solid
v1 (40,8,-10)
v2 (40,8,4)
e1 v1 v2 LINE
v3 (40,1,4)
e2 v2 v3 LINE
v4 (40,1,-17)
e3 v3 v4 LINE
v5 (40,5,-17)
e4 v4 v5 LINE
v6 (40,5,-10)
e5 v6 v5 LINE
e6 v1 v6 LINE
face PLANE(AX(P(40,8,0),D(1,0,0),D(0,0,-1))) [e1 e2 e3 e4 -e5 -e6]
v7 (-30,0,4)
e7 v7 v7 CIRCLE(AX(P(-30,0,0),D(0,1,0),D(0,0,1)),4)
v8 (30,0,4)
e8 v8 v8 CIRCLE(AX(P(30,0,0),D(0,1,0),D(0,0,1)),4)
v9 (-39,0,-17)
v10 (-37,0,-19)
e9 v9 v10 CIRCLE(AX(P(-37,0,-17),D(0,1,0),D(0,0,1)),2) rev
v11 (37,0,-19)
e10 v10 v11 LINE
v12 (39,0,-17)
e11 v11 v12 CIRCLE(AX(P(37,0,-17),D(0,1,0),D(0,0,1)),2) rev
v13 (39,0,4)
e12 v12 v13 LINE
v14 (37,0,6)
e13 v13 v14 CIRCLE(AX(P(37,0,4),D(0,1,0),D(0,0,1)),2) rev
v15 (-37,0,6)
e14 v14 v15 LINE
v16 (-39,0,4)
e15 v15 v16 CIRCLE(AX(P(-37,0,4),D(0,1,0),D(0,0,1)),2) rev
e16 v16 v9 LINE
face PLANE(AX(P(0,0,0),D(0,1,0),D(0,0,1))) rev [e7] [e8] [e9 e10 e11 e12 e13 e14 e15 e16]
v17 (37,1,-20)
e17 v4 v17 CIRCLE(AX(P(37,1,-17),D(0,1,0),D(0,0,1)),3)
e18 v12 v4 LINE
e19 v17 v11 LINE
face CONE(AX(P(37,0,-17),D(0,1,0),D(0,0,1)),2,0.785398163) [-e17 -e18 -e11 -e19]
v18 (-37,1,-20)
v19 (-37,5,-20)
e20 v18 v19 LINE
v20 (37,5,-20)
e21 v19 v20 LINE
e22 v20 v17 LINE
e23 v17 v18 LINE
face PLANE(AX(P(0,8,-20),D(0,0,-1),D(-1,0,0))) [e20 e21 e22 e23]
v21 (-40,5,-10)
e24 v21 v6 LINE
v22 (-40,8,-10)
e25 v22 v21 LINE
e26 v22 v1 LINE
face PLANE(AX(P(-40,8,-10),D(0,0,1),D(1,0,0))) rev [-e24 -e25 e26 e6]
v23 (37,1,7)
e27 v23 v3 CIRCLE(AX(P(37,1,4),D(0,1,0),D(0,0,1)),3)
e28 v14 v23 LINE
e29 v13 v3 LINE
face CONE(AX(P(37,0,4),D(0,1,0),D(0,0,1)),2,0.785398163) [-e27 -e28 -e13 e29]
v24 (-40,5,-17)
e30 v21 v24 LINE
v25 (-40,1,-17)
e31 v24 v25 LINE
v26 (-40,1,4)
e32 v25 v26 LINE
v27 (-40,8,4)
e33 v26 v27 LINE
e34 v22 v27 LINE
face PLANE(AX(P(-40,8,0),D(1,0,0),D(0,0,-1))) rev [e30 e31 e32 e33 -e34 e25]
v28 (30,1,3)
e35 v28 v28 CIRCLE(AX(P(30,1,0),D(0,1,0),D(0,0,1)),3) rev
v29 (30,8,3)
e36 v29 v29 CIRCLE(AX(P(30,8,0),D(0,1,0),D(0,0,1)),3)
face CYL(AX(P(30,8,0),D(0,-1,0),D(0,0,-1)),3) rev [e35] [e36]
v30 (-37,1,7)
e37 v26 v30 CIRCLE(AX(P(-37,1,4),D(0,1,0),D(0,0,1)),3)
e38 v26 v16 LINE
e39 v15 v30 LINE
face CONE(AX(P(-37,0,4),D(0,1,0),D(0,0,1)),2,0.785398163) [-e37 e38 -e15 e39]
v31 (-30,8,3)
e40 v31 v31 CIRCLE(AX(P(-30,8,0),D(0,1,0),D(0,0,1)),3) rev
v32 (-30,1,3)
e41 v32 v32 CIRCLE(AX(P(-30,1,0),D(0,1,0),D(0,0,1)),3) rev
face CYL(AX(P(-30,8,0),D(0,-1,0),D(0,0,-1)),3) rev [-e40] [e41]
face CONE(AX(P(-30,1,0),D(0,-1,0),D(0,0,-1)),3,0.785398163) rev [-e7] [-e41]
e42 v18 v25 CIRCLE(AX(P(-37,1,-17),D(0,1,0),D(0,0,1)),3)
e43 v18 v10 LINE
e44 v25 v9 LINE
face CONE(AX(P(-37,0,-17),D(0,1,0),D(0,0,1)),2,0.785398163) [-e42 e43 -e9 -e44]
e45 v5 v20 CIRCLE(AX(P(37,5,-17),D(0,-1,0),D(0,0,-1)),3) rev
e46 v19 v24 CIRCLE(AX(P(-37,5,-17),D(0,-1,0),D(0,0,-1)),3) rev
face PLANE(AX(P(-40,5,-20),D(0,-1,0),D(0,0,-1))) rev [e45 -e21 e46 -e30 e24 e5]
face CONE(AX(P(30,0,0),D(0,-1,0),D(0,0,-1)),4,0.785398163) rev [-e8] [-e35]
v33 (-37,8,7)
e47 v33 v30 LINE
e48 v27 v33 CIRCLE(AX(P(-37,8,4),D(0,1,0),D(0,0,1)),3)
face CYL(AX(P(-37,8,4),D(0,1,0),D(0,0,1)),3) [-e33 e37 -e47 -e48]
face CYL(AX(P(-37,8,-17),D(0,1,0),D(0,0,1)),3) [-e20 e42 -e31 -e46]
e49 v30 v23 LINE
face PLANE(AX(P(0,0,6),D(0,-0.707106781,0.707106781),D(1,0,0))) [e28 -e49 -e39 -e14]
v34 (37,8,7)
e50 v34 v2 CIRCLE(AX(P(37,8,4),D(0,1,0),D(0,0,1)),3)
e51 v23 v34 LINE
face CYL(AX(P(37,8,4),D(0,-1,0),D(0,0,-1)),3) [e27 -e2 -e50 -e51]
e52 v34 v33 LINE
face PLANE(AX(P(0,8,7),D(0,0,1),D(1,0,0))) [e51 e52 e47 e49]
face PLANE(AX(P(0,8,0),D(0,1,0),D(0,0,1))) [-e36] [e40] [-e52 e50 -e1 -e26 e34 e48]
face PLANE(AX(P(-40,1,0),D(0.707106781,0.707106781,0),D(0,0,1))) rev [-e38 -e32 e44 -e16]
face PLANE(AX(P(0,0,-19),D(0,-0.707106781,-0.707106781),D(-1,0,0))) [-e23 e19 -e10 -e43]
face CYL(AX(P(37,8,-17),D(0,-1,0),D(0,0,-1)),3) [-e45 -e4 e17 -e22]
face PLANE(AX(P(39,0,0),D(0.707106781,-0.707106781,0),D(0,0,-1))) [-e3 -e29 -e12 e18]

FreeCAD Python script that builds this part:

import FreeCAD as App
import Part
import Sketcher
from FreeCAD import Vector
Q = App.Units.Quantity


def edges_at(feature, points):
    """Names of the edges that pass closest to the given points."""
    edges = feature.Shape.Edges
    near = lambda p: min(range(len(edges)), key=lambda i: edges[i].distToShape(Part.Vertex(*p))[0])
    return sorted({f"Edge{near(p) + 1}" for p in points})

doc = App.newDocument("Part")
body = doc.addObject("PartDesign::Body", "Body")

# Sketch on XZ plane
sketch1 = body.newObject("Sketcher::SketchObject", "Sketch")
sketch1.AttachmentSupport = (doc.getObject("XZ_Plane"), [""])
sketch1.MapMode = "FlatFace"
sketch1.addGeometry(Part.LineSegment(Vector(40, -20, 0), Vector(-40, -20, 0)), False)
sketch1.addGeometry(Part.LineSegment(Vector(-40, -20, 0), Vector(-40, 7, 0)), False)
sketch1.addGeometry(Part.LineSegment(Vector(-40, 7, 0), Vector(40, 7, 0)), False)
sketch1.addGeometry(Part.LineSegment(Vector(40, 7, 0), Vector(40, -20, 0)), False)
sketch1.addGeometry(Part.Circle(Vector(30, 0, 0), Vector(0, 0, 1), 3), False)
sketch1.addGeometry(Part.Circle(Vector(-30, 0, 0), Vector(0, 0, 1), 3), False)
sketch1.addConstraint(Sketcher.Constraint("Coincident", 0, 2, 1, 1))
sketch1.addConstraint(Sketcher.Constraint("Coincident", 1, 2, 2, 1))
sketch1.addConstraint(Sketcher.Constraint("Coincident", 2, 2, 3, 1))
sketch1.addConstraint(Sketcher.Constraint("Coincident", 3, 2, 0, 1))
sketch1.addConstraint(Sketcher.Constraint("Horizontal", 0))
sketch1.addConstraint(Sketcher.Constraint("Vertical", 1))
sketch1.addConstraint(Sketcher.Constraint("Horizontal", 2))
sketch1.addConstraint(Sketcher.Constraint("Vertical", 3))
sketch1.addConstraint(Sketcher.Constraint("Equal", 4, 5))
sketch1.addConstraint(Sketcher.Constraint("Symmetric", 4, 3, 5, 3, -1, 1))
sketch1.addConstraint(Sketcher.Constraint("PointOnObject", 4, 3, -1))
sketch1.addConstraint(Sketcher.Constraint("Diameter", 4, Q("6 mm")))
sketch1.addConstraint(Sketcher.Constraint("DistanceX", 0, 2, 0, 1, Q("80 mm")))
sketch1.addConstraint(Sketcher.Constraint("DistanceY", 1, 1, 1, 2, Q("27 mm")))
sketch1.addConstraint(Sketcher.Constraint("DistanceX", -1, 1, 4, 3, Q("30 mm")))
sketch1.addConstraint(Sketcher.Constraint("DistanceX", 0, 2, -1, 1, Q("40 mm")))
sketch1.addConstraint(Sketcher.Constraint("DistanceY", 0, 2, -1, 1, Q("20 mm")))
pad1 = body.newObject("PartDesign::Pad", "Pad")
pad1.Profile = sketch1
pad1.Length = 8
pad1.Reversed = True

# Sketch on YZ plane
sketch2 = body.newObject("Sketcher::SketchObject", "Sketch001")
sketch2.AttachmentSupport = (doc.getObject("YZ_Plane"), [""])
sketch2.MapMode = "FlatFace"
sketch2.AttachmentOffset = App.Placement(Vector(0, 0, 40), App.Rotation())
sketch2.addGeometry(Part.LineSegment(Vector(8, -10, 0), Vector(5, -10, 0)), False)
sketch2.addGeometry(Part.LineSegment(Vector(5, -10, 0), Vector(5, -20, 0)), False)
sketch2.addGeometry(Part.LineSegment(Vector(5, -20, 0), Vector(8, -20, 0)), False)
sketch2.addGeometry(Part.LineSegment(Vector(8, -20, 0), Vector(8, -10, 0)), False)
sketch2.addConstraint(Sketcher.Constraint("Coincident", 0, 2, 1, 1))
sketch2.addConstraint(Sketcher.Constraint("Coincident", 1, 2, 2, 1))
sketch2.addConstraint(Sketcher.Constraint("Coincident", 2, 2, 3, 1))
sketch2.addConstraint(Sketcher.Constraint("Coincident", 3, 2, 0, 1))
sketch2.addConstraint(Sketcher.Constraint("Horizontal", 0))
sketch2.addConstraint(Sketcher.Constraint("Vertical", 1))
sketch2.addConstraint(Sketcher.Constraint("Horizontal", 2))
sketch2.addConstraint(Sketcher.Constraint("Vertical", 3))
sketch2.addConstraint(Sketcher.Constraint("DistanceX", 0, 2, 0, 1, Q("3 mm")))
sketch2.addConstraint(Sketcher.Constraint("DistanceY", 1, 2, 1, 1, Q("10 mm")))
sketch2.addConstraint(Sketcher.Constraint("DistanceX", -1, 1, 0, 2, Q("5 mm")))
sketch2.addConstraint(Sketcher.Constraint("DistanceY", 0, 2, -1, 1, Q("10 mm")))
pocket1 = body.newObject("PartDesign::Pocket", "Pocket")
pocket1.Profile = sketch2
pocket1.Type = "ThroughAll"
doc.recompute()

fillet = body.newObject("PartDesign::Fillet", "Fillet")
fillet.Base = (pocket1, edges_at(pocket1, [
    (-40, 4, 7),
    (40, 4, 7),
    (-40, 2.5, -20),
    (40, 2.5, -20),
]))
fillet.Radius = 3
doc.recompute()

chamfer = body.newObject("PartDesign::Chamfer", "Chamfer")
chamfer.Base = (fillet, edges_at(fillet, [
    (-40, 0, -6.5),
    (0, 0, 7),
    (0, 0, -20),
    (40, 0, -6.5),
    (39.121, 0, -19.121),
    (39.121, 0, 6.121),
    (-39.121, 0, 6.121),
    (-39.121, 0, -19.121),
    (-30, 0, -3),
    (30, 0, -3),
]))
chamfer.Size = 1

doc.recompute()
